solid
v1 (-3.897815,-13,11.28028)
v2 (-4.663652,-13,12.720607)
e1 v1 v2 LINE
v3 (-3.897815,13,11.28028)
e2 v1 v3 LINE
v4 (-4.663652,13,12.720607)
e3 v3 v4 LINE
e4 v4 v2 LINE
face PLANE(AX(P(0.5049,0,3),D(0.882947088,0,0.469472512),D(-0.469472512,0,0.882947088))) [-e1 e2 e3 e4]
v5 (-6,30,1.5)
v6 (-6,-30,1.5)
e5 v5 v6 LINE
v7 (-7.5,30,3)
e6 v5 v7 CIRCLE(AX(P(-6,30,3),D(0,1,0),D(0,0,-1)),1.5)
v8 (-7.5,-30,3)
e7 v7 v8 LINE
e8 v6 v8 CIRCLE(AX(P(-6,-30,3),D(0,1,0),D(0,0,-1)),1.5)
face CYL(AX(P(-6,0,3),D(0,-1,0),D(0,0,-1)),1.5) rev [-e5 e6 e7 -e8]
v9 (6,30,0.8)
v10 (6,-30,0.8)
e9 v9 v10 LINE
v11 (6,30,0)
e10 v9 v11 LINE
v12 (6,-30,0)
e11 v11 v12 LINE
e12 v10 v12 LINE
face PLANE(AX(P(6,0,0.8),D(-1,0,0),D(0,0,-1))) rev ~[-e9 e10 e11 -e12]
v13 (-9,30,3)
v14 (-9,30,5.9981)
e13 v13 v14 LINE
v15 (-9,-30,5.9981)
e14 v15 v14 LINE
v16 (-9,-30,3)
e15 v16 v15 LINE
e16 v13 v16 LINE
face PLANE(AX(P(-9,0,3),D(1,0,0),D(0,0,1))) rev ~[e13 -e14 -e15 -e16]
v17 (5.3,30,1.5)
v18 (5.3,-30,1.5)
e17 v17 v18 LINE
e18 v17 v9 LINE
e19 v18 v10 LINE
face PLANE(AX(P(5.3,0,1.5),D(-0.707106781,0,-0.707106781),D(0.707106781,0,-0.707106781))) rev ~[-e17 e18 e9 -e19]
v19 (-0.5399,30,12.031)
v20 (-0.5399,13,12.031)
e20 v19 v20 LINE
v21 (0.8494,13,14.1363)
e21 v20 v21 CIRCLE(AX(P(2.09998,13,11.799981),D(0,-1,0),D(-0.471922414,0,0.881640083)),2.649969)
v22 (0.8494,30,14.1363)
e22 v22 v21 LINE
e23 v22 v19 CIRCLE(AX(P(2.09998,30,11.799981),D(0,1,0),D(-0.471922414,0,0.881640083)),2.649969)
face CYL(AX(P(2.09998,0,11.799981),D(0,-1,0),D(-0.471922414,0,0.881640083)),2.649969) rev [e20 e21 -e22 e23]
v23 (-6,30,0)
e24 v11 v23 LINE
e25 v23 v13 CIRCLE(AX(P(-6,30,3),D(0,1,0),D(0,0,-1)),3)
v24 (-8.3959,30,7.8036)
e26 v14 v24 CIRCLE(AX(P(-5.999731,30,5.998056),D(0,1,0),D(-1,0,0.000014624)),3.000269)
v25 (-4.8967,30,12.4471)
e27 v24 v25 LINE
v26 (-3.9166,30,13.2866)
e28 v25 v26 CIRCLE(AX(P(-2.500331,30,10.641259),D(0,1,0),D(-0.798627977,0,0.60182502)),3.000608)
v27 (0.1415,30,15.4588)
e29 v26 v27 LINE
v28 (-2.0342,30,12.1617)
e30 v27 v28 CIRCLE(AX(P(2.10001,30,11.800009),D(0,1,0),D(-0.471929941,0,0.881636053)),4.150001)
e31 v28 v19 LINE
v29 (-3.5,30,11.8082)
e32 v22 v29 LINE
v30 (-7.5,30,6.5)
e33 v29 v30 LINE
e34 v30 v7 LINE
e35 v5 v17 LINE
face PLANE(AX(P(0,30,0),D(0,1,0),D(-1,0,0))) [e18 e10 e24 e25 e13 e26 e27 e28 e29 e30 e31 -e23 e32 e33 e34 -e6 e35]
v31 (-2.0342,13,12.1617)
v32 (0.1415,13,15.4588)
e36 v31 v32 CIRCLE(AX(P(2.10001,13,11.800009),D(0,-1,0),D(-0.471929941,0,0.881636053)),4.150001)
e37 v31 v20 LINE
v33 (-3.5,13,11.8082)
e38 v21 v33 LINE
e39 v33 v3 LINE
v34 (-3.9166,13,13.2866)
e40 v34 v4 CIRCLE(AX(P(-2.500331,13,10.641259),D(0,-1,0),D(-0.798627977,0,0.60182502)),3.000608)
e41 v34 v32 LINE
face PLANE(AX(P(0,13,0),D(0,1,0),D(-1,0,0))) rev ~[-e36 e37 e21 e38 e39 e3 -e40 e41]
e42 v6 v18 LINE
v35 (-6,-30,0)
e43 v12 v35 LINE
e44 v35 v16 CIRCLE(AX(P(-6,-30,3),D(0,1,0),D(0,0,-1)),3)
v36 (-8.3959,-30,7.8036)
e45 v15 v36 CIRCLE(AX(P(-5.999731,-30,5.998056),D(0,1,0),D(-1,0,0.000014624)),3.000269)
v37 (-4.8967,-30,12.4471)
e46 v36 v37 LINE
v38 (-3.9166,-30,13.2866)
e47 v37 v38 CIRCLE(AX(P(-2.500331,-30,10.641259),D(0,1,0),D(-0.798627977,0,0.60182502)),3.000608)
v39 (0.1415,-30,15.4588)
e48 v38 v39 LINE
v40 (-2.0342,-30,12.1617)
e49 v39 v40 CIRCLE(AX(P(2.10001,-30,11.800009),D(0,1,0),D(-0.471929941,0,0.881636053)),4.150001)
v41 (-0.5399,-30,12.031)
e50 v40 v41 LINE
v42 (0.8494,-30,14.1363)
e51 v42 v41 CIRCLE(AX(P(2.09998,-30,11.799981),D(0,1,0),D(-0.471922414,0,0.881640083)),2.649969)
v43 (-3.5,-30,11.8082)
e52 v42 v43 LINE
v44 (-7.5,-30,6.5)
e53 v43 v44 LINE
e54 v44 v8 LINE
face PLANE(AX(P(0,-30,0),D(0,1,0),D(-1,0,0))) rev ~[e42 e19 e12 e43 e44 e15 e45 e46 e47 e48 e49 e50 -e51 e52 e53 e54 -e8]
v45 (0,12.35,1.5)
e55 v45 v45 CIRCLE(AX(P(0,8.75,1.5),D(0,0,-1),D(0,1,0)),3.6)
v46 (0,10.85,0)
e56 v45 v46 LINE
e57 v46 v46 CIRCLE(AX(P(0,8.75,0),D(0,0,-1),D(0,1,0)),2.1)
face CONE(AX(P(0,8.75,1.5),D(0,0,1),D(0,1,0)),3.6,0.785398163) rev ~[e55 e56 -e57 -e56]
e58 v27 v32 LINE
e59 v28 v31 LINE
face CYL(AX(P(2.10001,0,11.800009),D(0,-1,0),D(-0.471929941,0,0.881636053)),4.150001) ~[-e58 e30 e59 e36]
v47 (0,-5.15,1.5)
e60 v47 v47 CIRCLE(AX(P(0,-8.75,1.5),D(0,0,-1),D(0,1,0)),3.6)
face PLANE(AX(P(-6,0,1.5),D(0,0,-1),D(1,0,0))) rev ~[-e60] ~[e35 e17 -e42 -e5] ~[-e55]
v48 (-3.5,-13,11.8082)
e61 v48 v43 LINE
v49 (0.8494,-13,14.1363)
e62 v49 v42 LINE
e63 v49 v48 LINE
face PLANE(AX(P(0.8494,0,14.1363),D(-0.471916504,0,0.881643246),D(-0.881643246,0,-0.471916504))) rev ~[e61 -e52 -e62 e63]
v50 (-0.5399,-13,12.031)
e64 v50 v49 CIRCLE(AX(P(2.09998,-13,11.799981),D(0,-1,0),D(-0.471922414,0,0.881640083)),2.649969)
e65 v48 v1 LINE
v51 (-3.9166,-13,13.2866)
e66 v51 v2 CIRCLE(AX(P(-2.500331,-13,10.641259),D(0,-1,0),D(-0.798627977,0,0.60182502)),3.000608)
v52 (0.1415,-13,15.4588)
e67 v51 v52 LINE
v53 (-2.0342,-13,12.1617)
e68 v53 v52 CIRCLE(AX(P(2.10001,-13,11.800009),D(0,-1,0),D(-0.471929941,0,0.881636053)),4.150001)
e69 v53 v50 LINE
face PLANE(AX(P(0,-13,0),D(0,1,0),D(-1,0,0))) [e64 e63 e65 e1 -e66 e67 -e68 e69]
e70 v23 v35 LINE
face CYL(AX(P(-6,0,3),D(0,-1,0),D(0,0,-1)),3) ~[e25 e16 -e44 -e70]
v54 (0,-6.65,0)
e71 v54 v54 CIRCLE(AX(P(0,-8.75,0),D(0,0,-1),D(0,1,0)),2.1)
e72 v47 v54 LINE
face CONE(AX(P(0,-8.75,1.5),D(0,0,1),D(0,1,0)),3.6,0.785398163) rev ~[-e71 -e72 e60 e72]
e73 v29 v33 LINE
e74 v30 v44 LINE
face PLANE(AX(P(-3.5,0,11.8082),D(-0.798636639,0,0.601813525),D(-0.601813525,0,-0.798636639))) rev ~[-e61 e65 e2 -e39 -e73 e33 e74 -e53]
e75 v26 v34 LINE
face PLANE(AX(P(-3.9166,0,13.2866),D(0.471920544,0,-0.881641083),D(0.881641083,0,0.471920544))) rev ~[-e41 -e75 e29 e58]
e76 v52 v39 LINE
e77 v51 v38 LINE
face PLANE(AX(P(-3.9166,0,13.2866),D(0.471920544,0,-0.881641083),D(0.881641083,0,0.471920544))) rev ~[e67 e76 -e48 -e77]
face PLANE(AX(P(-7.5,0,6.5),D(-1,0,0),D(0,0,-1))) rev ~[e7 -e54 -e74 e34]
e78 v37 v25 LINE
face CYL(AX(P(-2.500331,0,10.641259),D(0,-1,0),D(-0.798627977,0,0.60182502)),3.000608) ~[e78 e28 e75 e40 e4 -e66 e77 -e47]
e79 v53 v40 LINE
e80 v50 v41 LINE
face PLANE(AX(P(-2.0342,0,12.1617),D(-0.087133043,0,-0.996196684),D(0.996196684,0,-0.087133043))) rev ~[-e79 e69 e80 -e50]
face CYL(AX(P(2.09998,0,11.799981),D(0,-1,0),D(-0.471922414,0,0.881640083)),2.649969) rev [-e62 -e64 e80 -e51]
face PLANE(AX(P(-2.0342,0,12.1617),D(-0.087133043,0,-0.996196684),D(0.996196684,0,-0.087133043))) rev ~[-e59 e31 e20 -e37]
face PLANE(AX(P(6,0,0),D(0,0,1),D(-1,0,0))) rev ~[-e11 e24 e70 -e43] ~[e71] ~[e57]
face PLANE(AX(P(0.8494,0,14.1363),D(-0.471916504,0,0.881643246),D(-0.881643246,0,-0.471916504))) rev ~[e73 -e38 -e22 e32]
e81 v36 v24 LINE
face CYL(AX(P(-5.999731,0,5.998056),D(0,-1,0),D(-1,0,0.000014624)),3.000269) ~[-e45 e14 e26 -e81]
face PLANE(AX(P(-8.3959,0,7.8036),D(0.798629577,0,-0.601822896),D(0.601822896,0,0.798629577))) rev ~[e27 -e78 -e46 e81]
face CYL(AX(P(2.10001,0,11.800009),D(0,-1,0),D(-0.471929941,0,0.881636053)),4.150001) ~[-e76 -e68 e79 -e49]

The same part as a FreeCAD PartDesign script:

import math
import FreeCAD as App
import Part
import Sketcher
from FreeCAD import Vector
Q = App.Units.Quantity


def add_polygon(sketch, points):
    """Adds a closed chain of lines whose ends are joined by coincident constraints."""
    first, n = sketch.GeometryCount, len(points)
    for a, b in zip(points, points[1:] + points[:1]):
        sketch.addGeometry(Part.LineSegment(App.Vector(*a, 0), App.Vector(*b, 0)), False)
    for i in range(n):
        sketch.addConstraint(Sketcher.Constraint("Coincident", first + i, 2, first + (i + 1) % n, 1))

doc = App.newDocument("Part")
body = doc.addObject("PartDesign::Body", "Body")

# Sketch on XZ plane
sketch1 = doc.addObject("Sketcher::SketchObject", "Sketch")
body.addObject(sketch1)
sketch1.AttachmentSupport = (doc.XZ_Plane, [""])
sketch1.MapMode = "FlatFace"
sketch1.addGeometry([
    Part.LineSegment(Vector(-9, 3, 0), Vector(-9, 6, 0)),  # 0
    Part.ArcOfCircle(Part.Circle(Vector(-6, 6, 0), Vector(0, 0, 1), 3), math.radians(143), math.radians(180)),  # 1
    Part.LineSegment(Vector(-8.4, 7.8, 0), Vector(-4.9, 12.4, 0)),  # 2
    Part.ArcOfCircle(Part.Circle(Vector(-2.5, 10.6, 0), Vector(0, 0, 1), 3), math.radians(118), math.radians(143)),  # 3
    Part.LineSegment(Vector(-3.9, 13.3, 0), Vector(0.1, 15.5, 0)),  # 4
    Part.ArcOfCircle(Part.Circle(Vector(2.1, 11.8, 0), Vector(0, 0, 1), 4.2), math.radians(175), math.radians(478)),  # 5
    Part.LineSegment(Vector(-2, 12.2, 0), Vector(-0.5, 12, 0)),  # 6
    Part.ArcOfCircle(Part.Circle(Vector(2.1, 11.8, 0), Vector(0, 0, 1), 2.6), math.radians(175), math.radians(478)),  # 7
    Part.LineSegment(Vector(0.8, 14.1, 0), Vector(-3.5, 11.8, 0)),  # 8
    Part.LineSegment(Vector(-3.5, 11.8, 0), Vector(-7.5, 6.5, 0)),  # 9
    Part.LineSegment(Vector(-7.5, 6.5, 0), Vector(-7.5, 3, 0)),  # 10
    Part.ArcOfCircle(Part.Circle(Vector(-6, 3, 0), Vector(0, 0, 1), 1.5), math.radians(180), math.radians(270)),  # 11
    Part.LineSegment(Vector(-6, 1.5, 0), Vector(5.3, 1.5, 0)),  # 12
    Part.LineSegment(Vector(5.3, 1.5, 0), Vector(6, 0.8, 0)),  # 13
    Part.LineSegment(Vector(6, 0.8, 0), Vector(6, 0, 0)),  # 14
    Part.LineSegment(Vector(6, 0, 0), Vector(-6, 0, 0)),  # 15
    Part.ArcOfCircle(Part.Circle(Vector(-6, 3, 0), Vector(0, 0, 1), 3), math.radians(180), math.radians(270)),  # 16
], False)
sketch1.addConstraint([
    Sketcher.Constraint("Tangent", 0, 2, 1, 2),
    Sketcher.Constraint("Tangent", 1, 1, 2, 1),
    Sketcher.Constraint("Tangent", 2, 2, 3, 2),
    Sketcher.Constraint("Tangent", 3, 1, 4, 1),
    Sketcher.Constraint("Tangent", 4, 2, 5, 2),
    Sketcher.Constraint("Coincident", 5, 1, 6, 1),
    Sketcher.Constraint("Coincident", 6, 2, 7, 1),
    Sketcher.Constraint("Tangent", 7, 2, 8, 1),
    Sketcher.Constraint("Coincident", 8, 2, 9, 1),
    Sketcher.Constraint("Coincident", 9, 2, 10, 1),
    Sketcher.Constraint("Tangent", 10, 2, 11, 1),
    Sketcher.Constraint("Tangent", 11, 2, 12, 1),
    Sketcher.Constraint("Coincident", 12, 2, 13, 1),
    Sketcher.Constraint("Coincident", 13, 2, 14, 1),
    Sketcher.Constraint("Coincident", 14, 2, 15, 1),
    Sketcher.Constraint("Tangent", 15, 2, 16, 2),
    Sketcher.Constraint("Tangent", 16, 1, 0, 1),
    Sketcher.Constraint("Vertical", 0),
    Sketcher.Constraint("Vertical", 10),
    Sketcher.Constraint("Horizontal", 12),
    Sketcher.Constraint("Vertical", 14),
    Sketcher.Constraint("Horizontal", 15),
    Sketcher.Constraint("Coincident", 7, 3, 5, 3),
    Sketcher.Constraint("Coincident", 16, 3, 11, 3),
    Sketcher.Constraint("Equal", 1, 3),
    Sketcher.Constraint("Equal", 3, 16),
    Sketcher.Constraint("Symmetric", 14, 2, 15, 2, -1, 1),
    Sketcher.Constraint("Parallel", 4, 8),
    Sketcher.Constraint("Parallel", 2, 9),
    Sketcher.Constraint("Radius", 1, 3.0),
    Sketcher.Constraint("Radius", 11, 1.5),
    Sketcher.Constraint("DistanceX", 15, 2, 15, 1, 12.0),
    Sketcher.Constraint("Angle", 2, Q("52.9994 deg")),
    Sketcher.Constraint("Angle", 13, Q("-45 deg")),
    Sketcher.Constraint("Radius", 5, 4.15),
    Sketcher.Constraint("Radius", 7, 2.65),
    Sketcher.Constraint("DistanceX", 12, 1, 12, 2, 11.3),
    Sketcher.Constraint("DistanceY", 10, 2, 10, 1, 3.5),
    Sketcher.Constraint("DistanceY", 13, 2, 5, 3, 11.0),
    Sketcher.Constraint("DistanceX", -1, 1, 5, 3, 2.1),
    Sketcher.Constraint("DistanceX", 8, 2, -1, 1, 3.5),
    Sketcher.Constraint("DistanceY", 0, 1, 0, 2, 2.998),
    Sketcher.Constraint("DistanceX", 6, 2, -1, 1, 0.54),
    Sketcher.Constraint("DistanceY", 3, 3, 5, 1, 1.52),
])
pad1 = doc.addObject("PartDesign::Pad", "Pad")
body.addObject(pad1)
pad1.Profile = sketch1
pad1.Length = 60
pad1.Midplane = True

# Sketch on YZ plane
sketch2 = doc.addObject("Sketcher::SketchObject", "Sketch001")
body.addObject(sketch2)
sketch2.AttachmentSupport = (doc.YZ_Plane, [""])
sketch2.MapMode = "FlatFace"
add_polygon(sketch2, [(8.8, 1.5), (8.8, 0), (10.8, 0), (12.3, 1.5)])  # lines 0-3
sketch2.addGeometry(Part.LineSegment(Vector(8.8, 1.5, 0), Vector(8.8, 0, 0)), True)  # axis
sketch2.addConstraint([
    Sketcher.Constraint("Vertical", 0),
    Sketcher.Constraint("Horizontal", 1),
    Sketcher.Constraint("Horizontal", 3),
    Sketcher.Constraint("Vertical", 4),
    Sketcher.Constraint("Coincident", 4, 1, 3, 2),
    Sketcher.Constraint("PointOnObject", 0, 2, -1),
    Sketcher.Constraint("PointOnObject", 4, 2, -1),
    Sketcher.Constraint("Angle", 2, Q("45 deg")),
    Sketcher.Constraint("DistanceX", 1, 1, 1, 2, 2.1),
    Sketcher.Constraint("DistanceX", 3, 2, 3, 1, 3.6),
    Sketcher.Constraint("DistanceX", -1, 1, 0, 2, 8.75),
])
groove = doc.addObject("PartDesign::Groove", "Groove")
body.addObject(groove)
groove.Profile = sketch2
groove.ReferenceAxis = (sketch2, ["Axis0"])
groove.Angle = 360

# Sketch on YZ plane
sketch3 = doc.addObject("Sketcher::SketchObject", "Sketch002")
body.addObject(sketch3)
sketch3.AttachmentSupport = (doc.YZ_Plane, [""])
sketch3.MapMode = "FlatFace"
add_polygon(sketch3, [(-8.8, 1.5), (-8.8, 0), (-6.7, 0), (-5.2, 1.5)])  # lines 0-3
sketch3.addGeometry(Part.LineSegment(Vector(-8.8, 1.5, 0), Vector(-8.8, 0, 0)), True)  # axis
sketch3.addConstraint([
    Sketcher.Constraint("Vertical", 0),
    Sketcher.Constraint("Horizontal", 1),
    Sketcher.Constraint("Horizontal", 3),
    Sketcher.Constraint("Vertical", 4),
    Sketcher.Constraint("Coincident", 4, 1, 3, 2),
    Sketcher.Constraint("PointOnObject", 0, 2, -1),
    Sketcher.Constraint("PointOnObject", 4, 2, -1),
    Sketcher.Constraint("Angle", 2, Q("45 deg")),
    Sketcher.Constraint("DistanceX", 1, 1, 1, 2, 2.1),
    Sketcher.Constraint("DistanceX", 3, 2, 3, 1, 3.6),
    Sketcher.Constraint("DistanceX", 0, 2, -1, 1, 8.75),
])
groove2 = doc.addObject("PartDesign::Groove", "Groove001")
body.addObject(groove2)
groove2.Profile = sketch3
groove2.ReferenceAxis = (sketch3, ["Axis0"])
groove2.Angle = 360

# Sketch on XZ plane
sketch4 = doc.addObject("Sketcher::SketchObject", "Sketch003")
body.addObject(sketch4)
sketch4.AttachmentSupport = (doc.XZ_Plane, [""])
sketch4.MapMode = "FlatFace"
add_polygon(sketch4, [(1, 3), (-19, 40), (42, 40), (42, 3)])  # lines 0-3
sketch4.addConstraint([
    Sketcher.Constraint("Horizontal", 1),
    Sketcher.Constraint("Vertical", 2),
    Sketcher.Constraint("Horizontal", 3),
    Sketcher.Constraint("DistanceY", 2, 2, 2, 1, 37.0),
    Sketcher.Constraint("Angle", 0, Q("118 deg")),
    Sketcher.Constraint("DistanceY", -1, 1, 0, 2, 40.0),
    Sketcher.Constraint("DistanceX", -1, 1, 1, 2, 42.1),
    Sketcher.Constraint("DistanceX", 3, 2, 3, 1, 41.595),
])
pocket1 = doc.addObject("PartDesign::Pocket", "Pocket")
body.addObject(pocket1)
pocket1.Profile = sketch4
pocket1.Length = 26
pocket1.Midplane = True

doc.recompute()
